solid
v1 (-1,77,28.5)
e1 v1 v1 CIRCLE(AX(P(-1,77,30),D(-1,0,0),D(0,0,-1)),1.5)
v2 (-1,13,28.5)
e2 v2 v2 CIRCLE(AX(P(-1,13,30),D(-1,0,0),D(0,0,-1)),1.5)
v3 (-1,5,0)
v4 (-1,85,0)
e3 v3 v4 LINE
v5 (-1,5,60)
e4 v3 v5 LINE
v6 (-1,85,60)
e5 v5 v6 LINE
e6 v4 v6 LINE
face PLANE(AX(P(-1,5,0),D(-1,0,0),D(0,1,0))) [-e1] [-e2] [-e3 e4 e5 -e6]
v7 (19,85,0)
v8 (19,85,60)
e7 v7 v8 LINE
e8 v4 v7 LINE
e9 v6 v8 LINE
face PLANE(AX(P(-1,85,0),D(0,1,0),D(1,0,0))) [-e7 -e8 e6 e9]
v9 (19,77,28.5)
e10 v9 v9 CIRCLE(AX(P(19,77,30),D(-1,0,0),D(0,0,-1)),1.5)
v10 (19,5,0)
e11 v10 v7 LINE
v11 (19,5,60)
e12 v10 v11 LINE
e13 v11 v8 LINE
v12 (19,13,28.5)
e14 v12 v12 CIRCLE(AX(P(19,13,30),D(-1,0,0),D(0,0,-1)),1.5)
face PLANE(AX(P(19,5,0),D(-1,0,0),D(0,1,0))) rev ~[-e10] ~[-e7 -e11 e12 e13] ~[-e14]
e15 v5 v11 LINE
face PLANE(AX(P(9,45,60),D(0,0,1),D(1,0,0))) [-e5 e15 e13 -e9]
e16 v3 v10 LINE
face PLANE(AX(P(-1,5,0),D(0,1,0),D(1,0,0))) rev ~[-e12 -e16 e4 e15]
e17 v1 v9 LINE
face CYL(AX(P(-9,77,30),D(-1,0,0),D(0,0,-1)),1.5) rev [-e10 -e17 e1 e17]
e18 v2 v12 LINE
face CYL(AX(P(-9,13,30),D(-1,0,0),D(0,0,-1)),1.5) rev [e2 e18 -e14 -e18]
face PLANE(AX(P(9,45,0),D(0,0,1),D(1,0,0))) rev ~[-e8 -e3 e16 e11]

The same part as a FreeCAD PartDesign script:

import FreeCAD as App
import Part
import Sketcher

V = App.Vector

doc = App.newDocument("Part")
body = doc.addObject("PartDesign::Body", "Body")

sketch1 = body.newObject("Sketcher::SketchObject", "Sketch")
sketch1.AttachmentSupport = (doc.getObject("YZ_Plane"), [""])
sketch1.MapMode = "FlatFace"
sketch1.AttachmentOffset = App.Placement(V(0, 0, -8), App.Rotation())
sketch1.addGeometry(Part.Circle(V(8, 30, 0), V(0, 0, 1), 1.5), False)
sketch1.addConstraint(Sketcher.Constraint("Diameter", 0, 3.0))
sketch1.addConstraint(Sketcher.Constraint("DistanceX", -1, 1, 0, 3, 8.0))
sketch1.addConstraint(Sketcher.Constraint("DistanceY", -1, 1, 0, 3, 30.0))
pad1 = body.newObject("PartDesign::Pad", "Pad")
pad1.Profile = sketch1
pad1.Length = 50
body2 = doc.addObject("PartDesign::Body", "Body001")
body2.AllowCompound = True

sketch2 = body2.newObject("Sketcher::SketchObject", "Sketch001")
sketch2.AttachmentSupport = (doc.getObject("YZ_Plane001"), [""])
sketch2.MapMode = "FlatFace"
sketch2.AttachmentOffset = App.Placement(V(0, 0, -8), App.Rotation())
sketch2.addGeometry(Part.Circle(V(72, 30, 0), V(0, 0, 1), 1.5), False)
sketch2.addConstraint(Sketcher.Constraint("Diameter", 0, 3.0))
sketch2.addConstraint(Sketcher.Constraint("DistanceX", -1, 1, 0, 3, 72.0))
sketch2.addConstraint(Sketcher.Constraint("DistanceY", -1, 1, 0, 3, 30.0))
pad2 = body2.newObject("PartDesign::Pad", "Pad001")
pad2.Profile = sketch2
pad2.Length = 50
doc.recompute()

boolean = body2.newObject("PartDesign::Boolean", "Boolean")
boolean.Type = "Fuse"
boolean.addObjects([body])
body3 = doc.addObject("PartDesign::Body", "Body002")

sketch3 = body3.newObject("Sketcher::SketchObject", "Sketch002")
sketch3.AttachmentSupport = (doc.getObject("XY_Plane002"), [""])
sketch3.MapMode = "FlatFace"
sketch3.addGeometry(Part.LineSegment(V(0, 80, 0), V(0, 0, 0)), False)
sketch3.addGeometry(Part.LineSegment(V(0, 0, 0), V(20, 0, 0)), False)
sketch3.addGeometry(Part.LineSegment(V(20, 0, 0), V(20, 80, 0)), False)
sketch3.addGeometry(Part.LineSegment(V(20, 80, 0), V(0, 80, 0)), False)
sketch3.addConstraint(Sketcher.Constraint("Coincident", 0, 2, 1, 1))
sketch3.addConstraint(Sketcher.Constraint("Coincident", 1, 2, 2, 1))
sketch3.addConstraint(Sketcher.Constraint("Coincident", 2, 2, 3, 1))
sketch3.addConstraint(Sketcher.Constraint("Coincident", 3, 2, 0, 1))
sketch3.addConstraint(Sketcher.Constraint("Vertical", 0))
sketch3.addConstraint(Sketcher.Constraint("Horizontal", 1))
sketch3.addConstraint(Sketcher.Constraint("Vertical", 2))
sketch3.addConstraint(Sketcher.Constraint("Horizontal", 3))
sketch3.addConstraint(Sketcher.Constraint("Coincident", 0, 2, -1, 1))
sketch3.addConstraint(Sketcher.Constraint("DistanceX", 1, 1, 1, 2, 20.0))
sketch3.addConstraint(Sketcher.Constraint("DistanceY", 0, 2, 0, 1, 80.0))
pad3 = body3.newObject("PartDesign::Pad", "Pad002")
pad3.Profile = sketch3
pad3.Length = 60
doc.recompute()

boolean2 = body3.newObject("PartDesign::Boolean", "Boolean001")
boolean2.Type = "Cut"
boolean2.addObjects([body2])
body4 = doc.addObject("PartDesign::Body", "Body003")
doc.recompute()

body3.Placement = App.Placement(V(-1, 5, 0), App.Rotation(V(0, 0, 1), 0))
boolean3 = body4.newObject("PartDesign::Boolean", "Boolean002")
boolean3.Type = "Fuse"
boolean3.addObjects([body3])

doc.recompute()
